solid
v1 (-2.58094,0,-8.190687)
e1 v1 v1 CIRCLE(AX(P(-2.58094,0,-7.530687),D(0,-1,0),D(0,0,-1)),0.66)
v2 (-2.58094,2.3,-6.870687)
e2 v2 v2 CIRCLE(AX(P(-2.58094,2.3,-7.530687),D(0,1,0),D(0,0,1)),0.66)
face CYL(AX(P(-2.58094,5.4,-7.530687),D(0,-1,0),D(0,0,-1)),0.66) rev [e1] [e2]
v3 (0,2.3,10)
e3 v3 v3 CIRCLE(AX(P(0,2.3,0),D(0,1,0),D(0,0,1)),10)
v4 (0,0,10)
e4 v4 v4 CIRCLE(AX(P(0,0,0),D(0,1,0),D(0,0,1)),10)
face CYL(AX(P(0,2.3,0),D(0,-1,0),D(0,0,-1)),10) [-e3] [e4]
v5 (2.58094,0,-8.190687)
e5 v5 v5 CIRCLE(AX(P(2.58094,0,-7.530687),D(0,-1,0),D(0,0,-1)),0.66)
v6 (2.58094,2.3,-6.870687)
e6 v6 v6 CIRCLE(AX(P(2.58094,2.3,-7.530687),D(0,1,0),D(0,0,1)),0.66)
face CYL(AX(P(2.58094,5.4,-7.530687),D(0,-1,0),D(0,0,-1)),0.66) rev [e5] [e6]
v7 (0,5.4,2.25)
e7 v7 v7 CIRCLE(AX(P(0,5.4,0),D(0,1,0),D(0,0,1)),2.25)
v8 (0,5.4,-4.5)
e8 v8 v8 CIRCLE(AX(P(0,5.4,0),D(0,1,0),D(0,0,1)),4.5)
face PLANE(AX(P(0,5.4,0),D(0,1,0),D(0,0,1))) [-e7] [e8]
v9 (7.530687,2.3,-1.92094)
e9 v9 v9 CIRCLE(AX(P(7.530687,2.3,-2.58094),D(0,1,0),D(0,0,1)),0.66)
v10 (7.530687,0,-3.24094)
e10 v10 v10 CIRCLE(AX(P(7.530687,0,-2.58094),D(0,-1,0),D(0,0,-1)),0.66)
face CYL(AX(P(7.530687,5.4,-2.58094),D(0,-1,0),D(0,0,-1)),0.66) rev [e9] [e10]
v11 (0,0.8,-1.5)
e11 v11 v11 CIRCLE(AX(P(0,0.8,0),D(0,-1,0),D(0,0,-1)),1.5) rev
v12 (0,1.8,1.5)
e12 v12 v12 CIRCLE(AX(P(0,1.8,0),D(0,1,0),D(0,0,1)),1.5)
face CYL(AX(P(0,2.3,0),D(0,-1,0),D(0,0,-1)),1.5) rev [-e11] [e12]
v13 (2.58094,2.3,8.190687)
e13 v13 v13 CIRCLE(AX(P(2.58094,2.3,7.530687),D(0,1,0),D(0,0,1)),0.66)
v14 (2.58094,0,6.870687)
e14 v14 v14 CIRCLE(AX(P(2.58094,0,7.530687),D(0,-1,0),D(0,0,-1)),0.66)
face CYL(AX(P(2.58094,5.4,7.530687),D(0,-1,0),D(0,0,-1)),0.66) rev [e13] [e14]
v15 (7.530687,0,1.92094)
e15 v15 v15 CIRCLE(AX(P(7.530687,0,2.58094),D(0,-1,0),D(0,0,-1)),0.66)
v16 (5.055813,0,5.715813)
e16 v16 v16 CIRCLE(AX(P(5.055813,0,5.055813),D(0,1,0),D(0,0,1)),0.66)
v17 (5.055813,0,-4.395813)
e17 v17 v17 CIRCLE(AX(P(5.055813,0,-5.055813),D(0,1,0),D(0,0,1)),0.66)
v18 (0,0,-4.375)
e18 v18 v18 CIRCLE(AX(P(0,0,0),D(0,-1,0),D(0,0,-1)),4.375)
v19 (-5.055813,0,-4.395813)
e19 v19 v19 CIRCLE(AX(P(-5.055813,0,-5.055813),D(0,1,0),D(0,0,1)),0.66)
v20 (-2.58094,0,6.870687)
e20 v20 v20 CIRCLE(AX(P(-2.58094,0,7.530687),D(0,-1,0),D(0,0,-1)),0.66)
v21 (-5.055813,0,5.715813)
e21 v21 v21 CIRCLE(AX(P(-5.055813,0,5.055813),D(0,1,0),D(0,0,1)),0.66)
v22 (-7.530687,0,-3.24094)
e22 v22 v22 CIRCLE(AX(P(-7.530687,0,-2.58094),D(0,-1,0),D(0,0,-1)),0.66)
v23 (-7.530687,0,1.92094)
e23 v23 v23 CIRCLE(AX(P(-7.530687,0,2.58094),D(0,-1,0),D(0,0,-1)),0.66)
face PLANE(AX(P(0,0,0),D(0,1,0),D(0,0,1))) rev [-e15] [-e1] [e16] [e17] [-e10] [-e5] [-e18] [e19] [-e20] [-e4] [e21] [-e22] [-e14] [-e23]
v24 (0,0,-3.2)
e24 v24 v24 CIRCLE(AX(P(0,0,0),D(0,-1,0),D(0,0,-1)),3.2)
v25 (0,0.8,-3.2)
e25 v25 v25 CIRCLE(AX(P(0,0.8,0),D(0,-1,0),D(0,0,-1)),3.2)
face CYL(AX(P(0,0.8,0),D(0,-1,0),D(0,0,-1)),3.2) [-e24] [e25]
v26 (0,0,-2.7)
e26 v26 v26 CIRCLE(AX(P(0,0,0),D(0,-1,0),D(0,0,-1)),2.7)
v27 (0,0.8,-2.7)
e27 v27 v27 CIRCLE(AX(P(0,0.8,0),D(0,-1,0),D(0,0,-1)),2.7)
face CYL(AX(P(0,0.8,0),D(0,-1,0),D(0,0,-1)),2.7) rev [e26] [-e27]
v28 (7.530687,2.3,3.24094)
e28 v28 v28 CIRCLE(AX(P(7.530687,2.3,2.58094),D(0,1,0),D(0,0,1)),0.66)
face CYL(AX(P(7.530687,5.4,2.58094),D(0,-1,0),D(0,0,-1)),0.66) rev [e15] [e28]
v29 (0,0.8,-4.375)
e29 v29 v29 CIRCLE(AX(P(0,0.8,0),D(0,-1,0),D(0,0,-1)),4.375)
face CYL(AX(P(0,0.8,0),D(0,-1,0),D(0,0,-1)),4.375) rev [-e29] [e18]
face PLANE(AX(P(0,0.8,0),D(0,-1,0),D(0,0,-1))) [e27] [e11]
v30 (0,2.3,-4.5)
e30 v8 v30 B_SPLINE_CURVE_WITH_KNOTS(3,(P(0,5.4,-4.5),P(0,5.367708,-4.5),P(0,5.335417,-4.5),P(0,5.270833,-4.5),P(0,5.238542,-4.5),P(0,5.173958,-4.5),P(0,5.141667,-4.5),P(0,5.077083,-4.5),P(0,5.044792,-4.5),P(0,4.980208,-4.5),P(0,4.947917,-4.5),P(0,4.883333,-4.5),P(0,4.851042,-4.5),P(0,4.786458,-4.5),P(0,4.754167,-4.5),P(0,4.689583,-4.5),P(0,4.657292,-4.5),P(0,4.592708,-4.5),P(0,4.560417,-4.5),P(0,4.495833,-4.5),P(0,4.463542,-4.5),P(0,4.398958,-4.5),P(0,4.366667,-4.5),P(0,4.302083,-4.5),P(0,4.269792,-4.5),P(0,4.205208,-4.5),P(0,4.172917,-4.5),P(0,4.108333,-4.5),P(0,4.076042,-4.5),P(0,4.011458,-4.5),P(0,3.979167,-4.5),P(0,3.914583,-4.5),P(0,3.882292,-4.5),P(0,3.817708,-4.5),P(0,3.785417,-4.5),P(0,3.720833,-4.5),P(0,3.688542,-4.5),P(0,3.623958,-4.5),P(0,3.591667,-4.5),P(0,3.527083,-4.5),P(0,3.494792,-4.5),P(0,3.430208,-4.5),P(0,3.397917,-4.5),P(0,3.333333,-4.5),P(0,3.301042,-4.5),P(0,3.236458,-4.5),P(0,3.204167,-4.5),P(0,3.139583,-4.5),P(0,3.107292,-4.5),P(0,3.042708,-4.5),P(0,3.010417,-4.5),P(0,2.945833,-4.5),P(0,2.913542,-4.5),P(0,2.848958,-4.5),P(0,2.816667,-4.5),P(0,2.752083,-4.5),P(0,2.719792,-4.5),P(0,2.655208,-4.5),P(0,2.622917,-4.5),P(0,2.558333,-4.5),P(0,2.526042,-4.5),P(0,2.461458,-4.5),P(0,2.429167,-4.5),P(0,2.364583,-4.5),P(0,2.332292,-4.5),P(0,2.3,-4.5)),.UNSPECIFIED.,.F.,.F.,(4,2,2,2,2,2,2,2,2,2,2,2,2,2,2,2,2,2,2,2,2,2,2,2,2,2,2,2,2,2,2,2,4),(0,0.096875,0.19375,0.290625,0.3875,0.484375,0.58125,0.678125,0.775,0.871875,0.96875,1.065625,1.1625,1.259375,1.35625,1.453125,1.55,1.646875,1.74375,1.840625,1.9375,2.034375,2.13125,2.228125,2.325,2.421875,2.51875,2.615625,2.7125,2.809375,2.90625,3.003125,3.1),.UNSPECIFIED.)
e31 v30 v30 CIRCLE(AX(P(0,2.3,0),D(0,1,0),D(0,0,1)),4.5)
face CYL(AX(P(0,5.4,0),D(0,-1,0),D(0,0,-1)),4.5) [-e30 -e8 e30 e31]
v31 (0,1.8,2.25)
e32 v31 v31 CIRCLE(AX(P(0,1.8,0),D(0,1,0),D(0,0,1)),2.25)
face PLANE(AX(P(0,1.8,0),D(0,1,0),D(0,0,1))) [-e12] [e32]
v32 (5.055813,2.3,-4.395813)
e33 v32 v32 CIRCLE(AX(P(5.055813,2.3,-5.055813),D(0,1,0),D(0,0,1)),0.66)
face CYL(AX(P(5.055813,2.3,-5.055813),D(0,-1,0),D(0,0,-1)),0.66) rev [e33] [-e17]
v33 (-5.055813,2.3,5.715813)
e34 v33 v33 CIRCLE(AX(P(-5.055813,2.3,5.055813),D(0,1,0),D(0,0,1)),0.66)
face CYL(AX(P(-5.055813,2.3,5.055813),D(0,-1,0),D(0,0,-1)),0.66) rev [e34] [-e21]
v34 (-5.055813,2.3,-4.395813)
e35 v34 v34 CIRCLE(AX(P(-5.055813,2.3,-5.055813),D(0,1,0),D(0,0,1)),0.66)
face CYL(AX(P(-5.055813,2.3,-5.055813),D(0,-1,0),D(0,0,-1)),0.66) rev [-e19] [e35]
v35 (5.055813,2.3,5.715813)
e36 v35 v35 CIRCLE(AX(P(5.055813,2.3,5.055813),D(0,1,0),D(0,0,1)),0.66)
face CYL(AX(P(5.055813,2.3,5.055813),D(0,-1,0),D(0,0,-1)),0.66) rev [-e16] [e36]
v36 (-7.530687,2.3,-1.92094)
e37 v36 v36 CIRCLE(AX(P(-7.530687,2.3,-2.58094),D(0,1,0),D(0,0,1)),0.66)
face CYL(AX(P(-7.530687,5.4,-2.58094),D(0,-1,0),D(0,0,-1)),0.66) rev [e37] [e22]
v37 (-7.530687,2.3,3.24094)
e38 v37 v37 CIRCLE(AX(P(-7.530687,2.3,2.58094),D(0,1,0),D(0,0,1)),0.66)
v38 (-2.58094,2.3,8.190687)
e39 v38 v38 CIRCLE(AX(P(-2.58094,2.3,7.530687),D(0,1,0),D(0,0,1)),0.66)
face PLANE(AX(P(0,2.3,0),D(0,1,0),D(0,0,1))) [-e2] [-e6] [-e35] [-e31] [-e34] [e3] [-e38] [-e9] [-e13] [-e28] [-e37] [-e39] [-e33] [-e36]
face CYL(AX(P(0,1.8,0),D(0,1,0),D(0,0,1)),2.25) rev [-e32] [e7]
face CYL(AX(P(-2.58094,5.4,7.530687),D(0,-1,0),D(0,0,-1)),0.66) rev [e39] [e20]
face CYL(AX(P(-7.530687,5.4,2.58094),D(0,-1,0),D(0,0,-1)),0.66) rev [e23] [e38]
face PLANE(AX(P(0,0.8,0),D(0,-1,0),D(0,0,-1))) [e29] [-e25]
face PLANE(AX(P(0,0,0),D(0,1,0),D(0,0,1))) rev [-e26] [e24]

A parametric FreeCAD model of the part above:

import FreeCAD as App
import Part
import Sketcher

V = App.Vector

doc = App.newDocument("Part")
params = doc.addObject("Spreadsheet::Sheet", "Params")
for row, (alias, value) in enumerate([
    ("sketch1_diameter", "20 mm"),
    ("sketch1_diameter2", "3 mm"),
    ("sketch1_diameter3", "1.32 mm"),
    ("pad1_length", "2.3 mm"),
    ("sketch2_diameter", "9 mm"),
    ("sketch2_diameter2", "3 mm"),
    ("pad2_length", "3.1 mm"),
    ("sketch3_diameter", "4.5 mm"),
    ("pocket1_length", "3.6 mm"),
    ("sketch4_diameter", "1.32 mm"),
    ("sketch5_diameter", "3 mm"),
    ("sketch5_diameter2", "6.4 mm"),
    ("sketch5_diameter3", "5.4 mm"),
    ("sketch5_diameter4", "8.75 mm"),
    ("pocket3_length", "0.8 mm"),
], start=1):
    params.set(f"A{row}", alias)
    params.set(f"B{row}", "=" + value)
    params.setAlias(f"B{row}", alias)

body = doc.addObject("PartDesign::Body", "Body")

# Sketch on XZ plane
sketch1 = body.newObject("Sketcher::SketchObject", "Sketch")
sketch1.AttachmentSupport = (doc.getObject("XZ_Plane"), [""])
sketch1.MapMode = "FlatFace"
sketch1.addGeometry([
    Part.Circle(V(0, 0, 0), V(0, 0, 1), 10),  # 0
    Part.Circle(V(-5.1, -5.1, 0), V(0, 0, 1), 0.7),  # 1
    Part.Circle(V(-5.1, 5.1, 0), V(0, 0, 1), 0.7),  # 2
    Part.Circle(V(0, 0, 0), V(0, 0, 1), 1.5),  # 3
    Part.Circle(V(5.1, -5.1, 0), V(0, 0, 1), 0.7),  # 4
    Part.Circle(V(5.1, 5.1, 0), V(0, 0, 1), 0.7),  # 5
], False)
sketch1.addConstraint([
    Sketcher.Constraint("Coincident", 0, 3, -1, 1),
    Sketcher.Constraint("Coincident", 3, 3, -1, 1),
    Sketcher.Constraint("Equal", 1, 2),
    Sketcher.Constraint("Equal", 2, 4),
    Sketcher.Constraint("Equal", 4, 5),
    Sketcher.Constraint("Symmetric", 2, 3, 4, 3, -1, 1),
    Sketcher.Constraint("Symmetric", 1, 3, 5, 3, -1, 1),
    Sketcher.Constraint("Symmetric", 1, 3, 4, 3, -2),
    Sketcher.Constraint("Diameter", 0, 20.0),
    Sketcher.Constraint("Diameter", 3, 3.0),
    Sketcher.Constraint("Diameter", 1, 1.32),
    Sketcher.Constraint("DistanceX", 1, 3, -1, 1, 5.055813),
    Sketcher.Constraint("DistanceY", 1, 3, -1, 1, 5.055813),
])
sketch1.setExpression("Constraints[8]", "Params.sketch1_diameter")
sketch1.setExpression("Constraints[9]", "Params.sketch1_diameter2")
sketch1.setExpression("Constraints[10]", "Params.sketch1_diameter3")
pad1 = body.newObject("PartDesign::Pad", "Pad")
pad1.Profile = sketch1
pad1.setExpression("Length", "Params.pad1_length")
pad1.Reversed = True

# Sketch on XZ plane
sketch2 = body.newObject("Sketcher::SketchObject", "Sketch001")
sketch2.AttachmentSupport = (doc.getObject("XZ_Plane"), [""])
sketch2.MapMode = "FlatFace"
sketch2.AttachmentOffset = App.Placement(V(0, 0, -2.3), App.Rotation())
sketch2.addGeometry([
    Part.Circle(V(0, 0, 0), V(0, 0, 1), 4.5),
    Part.Circle(V(0, 0, 0), V(0, 0, 1), 1.5),
], False)
sketch2.addConstraint([
    Sketcher.Constraint("Coincident", 0, 3, -1, 1),
    Sketcher.Constraint("Coincident", 1, 3, -1, 1),
    Sketcher.Constraint("Diameter", 0, 9.0),
    Sketcher.Constraint("Diameter", 1, 3.0),
])
sketch2.setExpression("Constraints[2]", "Params.sketch2_diameter")
sketch2.setExpression("Constraints[3]", "Params.sketch2_diameter2")
pad2 = body.newObject("PartDesign::Pad", "Pad001")
pad2.Profile = sketch2
pad2.setExpression("Length", "Params.pad2_length")
pad2.Reversed = True

# Sketch on XZ plane
sketch3 = body.newObject("Sketcher::SketchObject", "Sketch002")
sketch3.AttachmentSupport = (doc.getObject("XZ_Plane"), [""])
sketch3.MapMode = "FlatFace"
sketch3.AttachmentOffset = App.Placement(V(0, 0, -5.4), App.Rotation())
sketch3.addGeometry(Part.Circle(V(0, 0, 0), V(0, 0, 1), 2.2), False)
sketch3.addConstraint([
    Sketcher.Constraint("Coincident", 0, 3, -1, 1),
    Sketcher.Constraint("Diameter", 0, 4.5),
])
sketch3.setExpression("Constraints[1]", "Params.sketch3_diameter")
pocket1 = body.newObject("PartDesign::Pocket", "Pocket")
pocket1.Profile = sketch3
pocket1.setExpression("Length", "Params.pocket1_length")
pocket1.Reversed = True

# Sketch on XZ plane
sketch4 = body.newObject("Sketcher::SketchObject", "Sketch003")
sketch4.AttachmentSupport = (doc.getObject("XZ_Plane"), [""])
sketch4.MapMode = "FlatFace"
sketch4.addGeometry([
    Part.Circle(V(2.6, 7.5, 0), V(0, 0, 1), 0.7),  # 0
    Part.Circle(V(7.5, 2.6, 0), V(0, 0, 1), 0.7),  # 1
    Part.Circle(V(7.5, -2.6, 0), V(0, 0, 1), 0.7),  # 2
    Part.Circle(V(2.6, -7.5, 0), V(0, 0, 1), 0.7),  # 3
    Part.Circle(V(-2.6, -7.5, 0), V(0, 0, 1), 0.7),  # 4
    Part.Circle(V(-7.5, -2.6, 0), V(0, 0, 1), 0.7),  # 5
    Part.Circle(V(-7.5, 2.6, 0), V(0, 0, 1), 0.7),  # 6
    Part.Circle(V(-2.6, 7.5, 0), V(0, 0, 1), 0.7),  # 7
], False)
sketch4.addConstraint([
    Sketcher.Constraint("Equal", 0, 1),
    Sketcher.Constraint("Equal", 1, 2),
    Sketcher.Constraint("Equal", 2, 3),
    Sketcher.Constraint("Equal", 3, 4),
    Sketcher.Constraint("Equal", 4, 5),
    Sketcher.Constraint("Equal", 5, 6),
    Sketcher.Constraint("Equal", 6, 7),
    Sketcher.Constraint("Symmetric", 0, 3, 4, 3, -1, 1),
    Sketcher.Constraint("Symmetric", 1, 3, 5, 3, -1, 1),
    Sketcher.Constraint("Symmetric", 2, 3, 6, 3, -1, 1),
    Sketcher.Constraint("Symmetric", 3, 3, 7, 3, -1, 1),
    Sketcher.Constraint("Symmetric", 3, 3, 4, 3, -2),
    Sketcher.Constraint("Symmetric", 2, 3, 5, 3, -2),
    Sketcher.Constraint("Diameter", 0, 1.32),
    Sketcher.Constraint("DistanceX", -1, 1, 0, 3, 2.58094),
    Sketcher.Constraint("DistanceY", -1, 1, 1, 3, 2.58094),
    Sketcher.Constraint("DistanceY", -1, 1, 0, 3, 7.530687),
    Sketcher.Constraint("DistanceX", -1, 1, 1, 3, 7.530687),
])
sketch4.setExpression("Constraints[13]", "Params.sketch4_diameter")
pocket2 = body.newObject("PartDesign::Pocket", "Pocket001")
pocket2.Profile = sketch4
pocket2.Type = "ThroughAll"

# Sketch on XZ plane
sketch5 = body.newObject("Sketcher::SketchObject", "Sketch004")
sketch5.AttachmentSupport = (doc.getObject("XZ_Plane"), [""])
sketch5.MapMode = "FlatFace"
sketch5.addGeometry([
    Part.Circle(V(0, 0, 0), V(0, 0, 1), 4.4),
    Part.Circle(V(0, 0, 0), V(0, 0, 1), 3.2),
    Part.Circle(V(0, 0, 0), V(0, 0, 1), 2.7),
    Part.Circle(V(0, 0, 0), V(0, 0, 1), 1.5),
], False)
sketch5.addConstraint([
    Sketcher.Constraint("Coincident", 0, 3, -1, 1),
    Sketcher.Constraint("Coincident", 1, 3, -1, 1),
    Sketcher.Constraint("Coincident", 2, 3, -1, 1),
    Sketcher.Constraint("Coincident", 3, 3, -1, 1),
    Sketcher.Constraint("Diameter", 3, 3.0),
    Sketcher.Constraint("Diameter", 1, 6.4),
    Sketcher.Constraint("Diameter", 2, 5.4),
    Sketcher.Constraint("Diameter", 0, 8.75),
])
sketch5.setExpression("Constraints[4]", "Params.sketch5_diameter")
sketch5.setExpression("Constraints[5]", "Params.sketch5_diameter2")
sketch5.setExpression("Constraints[6]", "Params.sketch5_diameter3")
sketch5.setExpression("Constraints[7]", "Params.sketch5_diameter4")
pocket3 = body.newObject("PartDesign::Pocket", "Pocket002")
pocket3.Profile = sketch5
pocket3.setExpression("Length", "Params.pocket3_length")

doc.recompute()
